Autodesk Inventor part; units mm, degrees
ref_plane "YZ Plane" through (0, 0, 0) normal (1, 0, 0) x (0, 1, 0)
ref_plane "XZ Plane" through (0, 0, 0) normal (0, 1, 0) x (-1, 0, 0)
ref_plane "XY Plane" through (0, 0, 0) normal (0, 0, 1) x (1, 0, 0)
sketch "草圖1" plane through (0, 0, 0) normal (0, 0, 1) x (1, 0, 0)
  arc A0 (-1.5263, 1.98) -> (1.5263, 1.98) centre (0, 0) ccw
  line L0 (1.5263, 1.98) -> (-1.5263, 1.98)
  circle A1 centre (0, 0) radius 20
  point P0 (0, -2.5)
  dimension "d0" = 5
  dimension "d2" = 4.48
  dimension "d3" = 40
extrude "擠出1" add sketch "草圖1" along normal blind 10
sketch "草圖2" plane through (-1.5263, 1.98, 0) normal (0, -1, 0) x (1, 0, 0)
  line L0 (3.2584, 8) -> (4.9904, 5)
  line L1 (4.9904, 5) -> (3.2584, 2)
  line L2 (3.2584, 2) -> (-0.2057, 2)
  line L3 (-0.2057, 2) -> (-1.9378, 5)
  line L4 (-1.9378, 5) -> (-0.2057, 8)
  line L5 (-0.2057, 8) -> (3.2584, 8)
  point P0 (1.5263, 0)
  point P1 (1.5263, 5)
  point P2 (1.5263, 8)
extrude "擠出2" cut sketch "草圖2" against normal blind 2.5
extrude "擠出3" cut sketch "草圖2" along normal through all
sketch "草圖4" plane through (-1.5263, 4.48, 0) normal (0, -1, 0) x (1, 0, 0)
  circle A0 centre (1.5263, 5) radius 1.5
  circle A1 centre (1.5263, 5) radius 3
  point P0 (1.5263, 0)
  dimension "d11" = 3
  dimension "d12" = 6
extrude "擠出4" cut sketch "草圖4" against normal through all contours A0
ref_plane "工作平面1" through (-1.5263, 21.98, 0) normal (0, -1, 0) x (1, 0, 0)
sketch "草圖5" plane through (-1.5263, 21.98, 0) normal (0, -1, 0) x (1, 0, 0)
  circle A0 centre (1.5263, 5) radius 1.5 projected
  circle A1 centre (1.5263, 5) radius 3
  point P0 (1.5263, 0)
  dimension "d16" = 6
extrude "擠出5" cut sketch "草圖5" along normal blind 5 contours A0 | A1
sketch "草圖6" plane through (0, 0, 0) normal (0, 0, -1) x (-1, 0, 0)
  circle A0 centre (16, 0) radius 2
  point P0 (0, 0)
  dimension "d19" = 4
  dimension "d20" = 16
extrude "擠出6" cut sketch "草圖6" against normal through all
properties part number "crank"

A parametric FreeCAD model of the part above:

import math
import FreeCAD as App
import Part
import Sketcher

V = App.Vector
Q = App.Units.Quantity

doc = App.newDocument("Part")
params = doc.addObject("Spreadsheet::Sheet", "Params")
for row, (alias, value) in enumerate([
    ("sketch1_diameter", "40 mm"),
    ("sketch1_radius", "2.5 mm"),
    ("pad1_length", "10 mm"),
    ("pocket1_length", "2.5 mm"),
    ("sketch4_diameter", "3 mm"),
    ("sketch5_diameter", "6 mm"),
    ("pocket4_length", "5 mm"),
    ("sketch6_diameter", "4 mm"),
], start=1):
    params.set(f"A{row}", alias)
    params.set(f"B{row}", "=" + value)
    params.setAlias(f"B{row}", alias)

body = doc.addObject("PartDesign::Body", "Body")

# Sketch on XY plane
sketch1 = body.newObject("Sketcher::SketchObject", "Sketch")
sketch1.AttachmentSupport = (doc.getObject("XY_Plane"), [""])
sketch1.MapMode = "FlatFace"
sketch1.addGeometry([
    Part.Circle(V(0, 0, 0), V(0, 0, 1), 20),
    Part.ArcOfCircle(Part.Circle(V(0, 0, 0), V(0, 0, 1), 2.5), math.radians(128), math.radians(412)),
    Part.LineSegment(V(-1.5, 2, 0), V(1.5, 2, 0)),
], False)
sketch1.addConstraint([
    Sketcher.Constraint("Coincident", 1, 1, 2, 1),
    Sketcher.Constraint("Coincident", 2, 2, 1, 2),
    Sketcher.Constraint("Horizontal", 2),
    Sketcher.Constraint("Coincident", 0, 3, -1, 1),
    Sketcher.Constraint("Coincident", 1, 3, -1, 1),
    Sketcher.Constraint("Diameter", 0, Q("40 mm")),
    Sketcher.Constraint("Radius", 1, Q("2.5 mm")),
    Sketcher.Constraint("DistanceY", -1, 1, 1, 1, Q("1.98 mm")),
])
sketch1.setExpression("Constraints[5]", "Params.sketch1_diameter")
sketch1.setExpression("Constraints[6]", "Params.sketch1_radius")
pad1 = body.newObject("PartDesign::Pad", "Pad")
pad1.Profile = sketch1
pad1.setExpression("Length", "Params.pad1_length")

# Sketch on XZ plane
sketch2 = body.newObject("Sketcher::SketchObject", "Sketch001")
sketch2.AttachmentSupport = (doc.getObject("XZ_Plane"), [""])
sketch2.MapMode = "FlatFace"
sketch2.AttachmentOffset = App.Placement(V(0, 0, -1.98), App.Rotation())
sketch2.addGeometry([
    Part.LineSegment(V(3.5, 5, 0), V(1.7, 8, 0)),  # 0
    Part.LineSegment(V(1.7, 8, 0), V(-1.7, 8, 0)),  # 1
    Part.LineSegment(V(-1.7, 8, 0), V(-3.5, 5, 0)),  # 2
    Part.LineSegment(V(-3.5, 5, 0), V(-1.7, 2, 0)),  # 3
    Part.LineSegment(V(-1.7, 2, 0), V(1.7, 2, 0)),  # 4
    Part.LineSegment(V(1.7, 2, 0), V(3.5, 5, 0)),  # 5
], False)
sketch2.addConstraint([
    Sketcher.Constraint("Coincident", 0, 2, 1, 1),
    Sketcher.Constraint("Coincident", 1, 2, 2, 1),
    Sketcher.Constraint("Coincident", 2, 2, 3, 1),
    Sketcher.Constraint("Coincident", 3, 2, 4, 1),
    Sketcher.Constraint("Coincident", 4, 2, 5, 1),
    Sketcher.Constraint("Coincident", 5, 2, 0, 1),
    Sketcher.Constraint("Horizontal", 1),
    Sketcher.Constraint("Horizontal", 4),
    Sketcher.Constraint("Symmetric", 2, 2, 5, 2, -2),
    Sketcher.Constraint("Parallel", 0, 3),
    Sketcher.Constraint("Parallel", 2, 5),
    Sketcher.Constraint("Vertical", 1, 2, 3, 2),
    Sketcher.Constraint("Vertical", 0, 2, 4, 2),
    Sketcher.Constraint("Angle", 0, Q("119.9993 deg")),
    Sketcher.Constraint("DistanceY", -1, 1, 0, 2, Q("8 mm")),
    Sketcher.Constraint("DistanceY", -1, 1, 2, 2, Q("5 mm")),
    Sketcher.Constraint("DistanceX", 1, 2, 1, 1, Q("3.464 mm")),
])
pocket1 = body.newObject("PartDesign::Pocket", "Pocket")
pocket1.Profile = sketch2
pocket1.setExpression("Length", "Params.pocket1_length")

# Sketch on XZ plane
sketch3 = body.newObject("Sketcher::SketchObject", "Sketch002")
sketch3.AttachmentSupport = (doc.getObject("XZ_Plane"), [""])
sketch3.MapMode = "FlatFace"
sketch3.AttachmentOffset = App.Placement(V(0, 0, -1.98), App.Rotation())
sketch3.addGeometry([
    Part.LineSegment(V(3.5, 5, 0), V(1.7, 8, 0)),  # 0
    Part.LineSegment(V(1.7, 8, 0), V(-1.7, 8, 0)),  # 1
    Part.LineSegment(V(-1.7, 8, 0), V(-3.5, 5, 0)),  # 2
    Part.LineSegment(V(-3.5, 5, 0), V(-1.7, 2, 0)),  # 3
    Part.LineSegment(V(-1.7, 2, 0), V(1.7, 2, 0)),  # 4
    Part.LineSegment(V(1.7, 2, 0), V(3.5, 5, 0)),  # 5
], False)
sketch3.addConstraint([
    Sketcher.Constraint("Coincident", 0, 2, 1, 1),
    Sketcher.Constraint("Coincident", 1, 2, 2, 1),
    Sketcher.Constraint("Coincident", 2, 2, 3, 1),
    Sketcher.Constraint("Coincident", 3, 2, 4, 1),
    Sketcher.Constraint("Coincident", 4, 2, 5, 1),
    Sketcher.Constraint("Coincident", 5, 2, 0, 1),
    Sketcher.Constraint("Horizontal", 1),
    Sketcher.Constraint("Horizontal", 4),
    Sketcher.Constraint("Symmetric", 2, 2, 5, 2, -2),
    Sketcher.Constraint("Parallel", 0, 3),
    Sketcher.Constraint("Parallel", 2, 5),
    Sketcher.Constraint("Vertical", 1, 2, 3, 2),
    Sketcher.Constraint("Vertical", 0, 2, 4, 2),
    Sketcher.Constraint("Angle", 0, Q("119.9993 deg")),
    Sketcher.Constraint("DistanceY", -1, 1, 0, 2, Q("8 mm")),
    Sketcher.Constraint("DistanceY", -1, 1, 2, 2, Q("5 mm")),
    Sketcher.Constraint("DistanceX", 1, 2, 1, 1, Q("3.464 mm")),
])
pocket2 = body.newObject("PartDesign::Pocket", "Pocket001")
pocket2.Profile = sketch3
pocket2.Type = "ThroughAll"
pocket2.Reversed = True

# Sketch on XZ plane
sketch4 = body.newObject("Sketcher::SketchObject", "Sketch003")
sketch4.AttachmentSupport = (doc.getObject("XZ_Plane"), [""])
sketch4.MapMode = "FlatFace"
sketch4.AttachmentOffset = App.Placement(V(0, 0, -4.48), App.Rotation())
sketch4.addGeometry(Part.Circle(V(0, 5, 0), V(0, 0, 1), 1.5), False)
sketch4.addConstraint([
    Sketcher.Constraint("PointOnObject", 0, 3, -2),
    Sketcher.Constraint("Diameter", 0, Q("3 mm")),
    Sketcher.Constraint("DistanceY", -1, 1, 0, 3, Q("5 mm")),
])
sketch4.setExpression("Constraints[1]", "Params.sketch4_diameter")
pocket3 = body.newObject("PartDesign::Pocket", "Pocket002")
pocket3.Profile = sketch4
pocket3.Type = "ThroughAll"

# Sketch on XZ plane
sketch5 = body.newObject("Sketcher::SketchObject", "Sketch004")
sketch5.AttachmentSupport = (doc.getObject("XZ_Plane"), [""])
sketch5.MapMode = "FlatFace"
sketch5.AttachmentOffset = App.Placement(V(0, 0, -21.98), App.Rotation())
sketch5.addGeometry(Part.Circle(V(0, 5, 0), V(0, 0, 1), 3), False)
sketch5.addConstraint([
    Sketcher.Constraint("PointOnObject", 0, 3, -2),
    Sketcher.Constraint("Diameter", 0, Q("6 mm")),
    Sketcher.Constraint("DistanceY", -1, 1, 0, 3, Q("5 mm")),
])
sketch5.setExpression("Constraints[1]", "Params.sketch5_diameter")
pocket4 = body.newObject("PartDesign::Pocket", "Pocket003")
pocket4.Profile = sketch5
pocket4.setExpression("Length", "Params.pocket4_length")
pocket4.Reversed = True

# Sketch on XY plane
sketch6 = body.newObject("Sketcher::SketchObject", "Sketch005")
sketch6.AttachmentSupport = (doc.getObject("XY_Plane"), [""])
sketch6.MapMode = "FlatFace"
sketch6.addGeometry(Part.Circle(V(-16, 0, 0), V(0, 0, 1), 2), False)
sketch6.addConstraint([
    Sketcher.Constraint("PointOnObject", 0, 3, -1),
    Sketcher.Constraint("Diameter", 0, Q("4 mm")),
    Sketcher.Constraint("DistanceX", 0, 3, -1, 1, Q("16 mm")),
])
sketch6.setExpression("Constraints[1]", "Params.sketch6_diameter")
pocket5 = body.newObject("PartDesign::Pocket", "Pocket004")
pocket5.Profile = sketch6
pocket5.Type = "ThroughAll"
pocket5.Reversed = True

doc.recompute()
